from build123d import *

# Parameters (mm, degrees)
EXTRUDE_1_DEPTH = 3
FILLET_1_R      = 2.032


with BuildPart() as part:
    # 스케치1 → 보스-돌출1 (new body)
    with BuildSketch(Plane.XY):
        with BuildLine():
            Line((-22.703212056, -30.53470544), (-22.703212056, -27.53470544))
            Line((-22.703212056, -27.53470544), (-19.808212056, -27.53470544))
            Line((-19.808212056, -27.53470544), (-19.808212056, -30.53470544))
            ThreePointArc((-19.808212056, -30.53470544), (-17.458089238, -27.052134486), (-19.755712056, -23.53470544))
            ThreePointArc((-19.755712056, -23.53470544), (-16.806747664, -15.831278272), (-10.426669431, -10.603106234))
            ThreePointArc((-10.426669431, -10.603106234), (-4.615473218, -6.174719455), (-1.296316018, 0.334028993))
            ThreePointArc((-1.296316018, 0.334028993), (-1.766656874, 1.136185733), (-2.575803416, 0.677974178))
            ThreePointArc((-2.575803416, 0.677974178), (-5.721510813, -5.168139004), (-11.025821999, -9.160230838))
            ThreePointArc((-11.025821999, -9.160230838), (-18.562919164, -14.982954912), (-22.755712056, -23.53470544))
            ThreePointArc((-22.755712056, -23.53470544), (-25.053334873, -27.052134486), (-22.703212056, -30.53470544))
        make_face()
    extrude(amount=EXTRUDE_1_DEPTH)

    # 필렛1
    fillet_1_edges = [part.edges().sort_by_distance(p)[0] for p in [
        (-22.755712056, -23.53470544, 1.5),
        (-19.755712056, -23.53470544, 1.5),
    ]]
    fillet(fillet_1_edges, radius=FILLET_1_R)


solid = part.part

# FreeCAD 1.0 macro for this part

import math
import FreeCAD as App
import Part
import Sketcher
from FreeCAD import Vector


def edges_at(feature, points):
    """Names of the edges that pass closest to the given points."""
    edges = feature.Shape.Edges
    near = lambda p: min(range(len(edges)), key=lambda i: edges[i].distToShape(Part.Vertex(*p))[0])
    return sorted({f"Edge{near(p) + 1}" for p in points})

doc = App.newDocument("Part")
body = doc.addObject("PartDesign::Body", "Body")

# Sketch on XY plane
sketch1 = body.newObject("Sketcher::SketchObject", "Sketch")
sketch1.AttachmentSupport = (doc.getObject("XY_Plane"), [""])
sketch1.MapMode = "FlatFace"
sketch1.addGeometry(Part.LineSegment(Vector(-22.703212, -30.534705, 0), Vector(-22.703212, -27.534705, 0)), False)
sketch1.addGeometry(Part.LineSegment(Vector(-22.703212, -27.534705, 0), Vector(-19.808212, -27.534705, 0)), False)
sketch1.addGeometry(Part.LineSegment(Vector(-19.808212, -27.534705, 0), Vector(-19.808212, -30.534705, 0)), False)
sketch1.addGeometry(Part.ArcOfCircle(Part.Circle(Vector(-21.255712, -27.023652, 0), Vector(0, 0, 1), 3.79773), math.radians(-67.595141), math.radians(66.735721)), False)
sketch1.addGeometry(Part.ArcOfCircle(Part.Circle(Vector(-3.764423, -25.2402, 0), Vector(0, 0, 1), 16.081978), math.radians(114.473216), math.radians(173.912333)), False)
sketch1.addGeometry(Part.ArcOfCircle(Part.Circle(Vector(-17.238789, 4.363263, 0), Vector(0, 0, 1), 16.443758), math.radians(-65.526784), math.radians(-14.183678)), False)
sketch1.addGeometry(Part.ArcOfCircle(Part.Circle(Vector(-1.938649, 0.49637, 0), Vector(0, 0, 1), 0.66253), math.radians(-14.183678), math.radians(164.091148)), False)
sketch1.addGeometry(Part.ArcOfCircle(Part.Circle(Vector(-17.470986, 4.923467, 0), Vector(0, 0, 1), 15.488405), math.radians(-65.409606), math.radians(-15.908852)), False)
sketch1.addGeometry(Part.ArcOfCircle(Part.Circle(Vector(-2.280766, -28.269553, 0), Vector(0, 0, 1), 21.015284), math.radians(114.590394), math.radians(166.97919)), False)
sketch1.addGeometry(Part.ArcOfCircle(Part.Circle(Vector(-21.255712, -27.023652, 0), Vector(0, 0, 1), 3.79773), math.radians(113.264279), math.radians(247.595141)), False)
sketch1.addConstraint(Sketcher.Constraint("Coincident", 0, 2, 1, 1))
sketch1.addConstraint(Sketcher.Constraint("Coincident", 1, 2, 2, 1))
sketch1.addConstraint(Sketcher.Constraint("Coincident", 2, 2, 3, 1))
sketch1.addConstraint(Sketcher.Constraint("Coincident", 3, 2, 4, 2))
sketch1.addConstraint(Sketcher.Constraint("Coincident", 4, 1, 5, 1))
sketch1.addConstraint(Sketcher.Constraint("Coincident", 5, 2, 6, 1))
sketch1.addConstraint(Sketcher.Constraint("Coincident", 6, 2, 7, 2))
sketch1.addConstraint(Sketcher.Constraint("Coincident", 7, 1, 8, 1))
sketch1.addConstraint(Sketcher.Constraint("Coincident", 8, 2, 9, 1))
sketch1.addConstraint(Sketcher.Constraint("Coincident", 9, 2, 0, 1))
sketch1.addConstraint(Sketcher.Constraint("Vertical", 0))
sketch1.addConstraint(Sketcher.Constraint("Horizontal", 1))
sketch1.addConstraint(Sketcher.Constraint("Vertical", 2))
sketch1.addConstraint(Sketcher.Constraint("Coincident", 9, 3, 3, 3))
sketch1.addConstraint(Sketcher.Constraint("DistanceY", 0, 1, 0, 2, 3.0))
sketch1.addConstraint(Sketcher.Constraint("DistanceY", 2, 2, 2, 1, 3.0))
sketch1.addConstraint(Sketcher.Constraint("DistanceY", 1, 2, 3, 2, 4.0))
sketch1.addConstraint(Sketcher.Constraint("DistanceX", 8, 2, 3, 2, 3.0))
sketch1.addConstraint(Sketcher.Constraint("DistanceY", 0, 2, 8, 2, 4.0))
sketch1.addConstraint(Sketcher.Constraint("DistanceX", 3, 3, 3, 2, 1.5))
sketch1.addConstraint(Sketcher.Constraint("DistanceX", 1, 1, 1, 2, 2.895))
sketch1.addConstraint(Sketcher.Constraint("Radius", 4, 16.081978))
sketch1.addConstraint(Sketcher.Constraint("Radius", 5, 16.443758))
sketch1.addConstraint(Sketcher.Constraint("Radius", 6, 0.66253))
sketch1.addConstraint(Sketcher.Constraint("Radius", 7, 15.488405))
sketch1.addConstraint(Sketcher.Constraint("Radius", 8, 21.015284))
sketch1.addConstraint(Sketcher.Constraint("DistanceY", 4, 3, -1, 1, 25.2402))
sketch1.addConstraint(Sketcher.Constraint("DistanceY", 8, 3, 3, 3, 1.2459))
sketch1.addConstraint(Sketcher.Constraint("DistanceY", 3, 2, 4, 1, 12.931599))
sketch1.addConstraint(Sketcher.Constraint("DistanceY", 7, 1, 6, 3, 9.6566))
sketch1.addConstraint(Sketcher.Constraint("DistanceX", 5, 3, -1, 1, 17.238789))
sketch1.addConstraint(Sketcher.Constraint("DistanceX", 6, 3, -1, 1, 1.938649))
sketch1.addConstraint(Sketcher.Constraint("DistanceY", -1, 1, 6, 3, 0.49637))
sketch1.addConstraint(Sketcher.Constraint("DistanceX", 4, 1, -1, 1, 10.426669))
sketch1.addConstraint(Sketcher.Constraint("DistanceY", -1, 1, 5, 2, 0.334029))
sketch1.addConstraint(Sketcher.Constraint("DistanceY", 4, 1, 6, 2, 11.28108))
pad1 = body.newObject("PartDesign::Pad", "Pad")
pad1.Profile = sketch1
pad1.Length = 3
doc.recompute()

fillet = body.newObject("PartDesign::Fillet", "Fillet")
fillet.Base = (pad1, edges_at(pad1, [(-22.756, -23.535, 1.5), (-19.756, -23.535, 1.5)]))
fillet.Radius = 2.032

doc.recompute()
